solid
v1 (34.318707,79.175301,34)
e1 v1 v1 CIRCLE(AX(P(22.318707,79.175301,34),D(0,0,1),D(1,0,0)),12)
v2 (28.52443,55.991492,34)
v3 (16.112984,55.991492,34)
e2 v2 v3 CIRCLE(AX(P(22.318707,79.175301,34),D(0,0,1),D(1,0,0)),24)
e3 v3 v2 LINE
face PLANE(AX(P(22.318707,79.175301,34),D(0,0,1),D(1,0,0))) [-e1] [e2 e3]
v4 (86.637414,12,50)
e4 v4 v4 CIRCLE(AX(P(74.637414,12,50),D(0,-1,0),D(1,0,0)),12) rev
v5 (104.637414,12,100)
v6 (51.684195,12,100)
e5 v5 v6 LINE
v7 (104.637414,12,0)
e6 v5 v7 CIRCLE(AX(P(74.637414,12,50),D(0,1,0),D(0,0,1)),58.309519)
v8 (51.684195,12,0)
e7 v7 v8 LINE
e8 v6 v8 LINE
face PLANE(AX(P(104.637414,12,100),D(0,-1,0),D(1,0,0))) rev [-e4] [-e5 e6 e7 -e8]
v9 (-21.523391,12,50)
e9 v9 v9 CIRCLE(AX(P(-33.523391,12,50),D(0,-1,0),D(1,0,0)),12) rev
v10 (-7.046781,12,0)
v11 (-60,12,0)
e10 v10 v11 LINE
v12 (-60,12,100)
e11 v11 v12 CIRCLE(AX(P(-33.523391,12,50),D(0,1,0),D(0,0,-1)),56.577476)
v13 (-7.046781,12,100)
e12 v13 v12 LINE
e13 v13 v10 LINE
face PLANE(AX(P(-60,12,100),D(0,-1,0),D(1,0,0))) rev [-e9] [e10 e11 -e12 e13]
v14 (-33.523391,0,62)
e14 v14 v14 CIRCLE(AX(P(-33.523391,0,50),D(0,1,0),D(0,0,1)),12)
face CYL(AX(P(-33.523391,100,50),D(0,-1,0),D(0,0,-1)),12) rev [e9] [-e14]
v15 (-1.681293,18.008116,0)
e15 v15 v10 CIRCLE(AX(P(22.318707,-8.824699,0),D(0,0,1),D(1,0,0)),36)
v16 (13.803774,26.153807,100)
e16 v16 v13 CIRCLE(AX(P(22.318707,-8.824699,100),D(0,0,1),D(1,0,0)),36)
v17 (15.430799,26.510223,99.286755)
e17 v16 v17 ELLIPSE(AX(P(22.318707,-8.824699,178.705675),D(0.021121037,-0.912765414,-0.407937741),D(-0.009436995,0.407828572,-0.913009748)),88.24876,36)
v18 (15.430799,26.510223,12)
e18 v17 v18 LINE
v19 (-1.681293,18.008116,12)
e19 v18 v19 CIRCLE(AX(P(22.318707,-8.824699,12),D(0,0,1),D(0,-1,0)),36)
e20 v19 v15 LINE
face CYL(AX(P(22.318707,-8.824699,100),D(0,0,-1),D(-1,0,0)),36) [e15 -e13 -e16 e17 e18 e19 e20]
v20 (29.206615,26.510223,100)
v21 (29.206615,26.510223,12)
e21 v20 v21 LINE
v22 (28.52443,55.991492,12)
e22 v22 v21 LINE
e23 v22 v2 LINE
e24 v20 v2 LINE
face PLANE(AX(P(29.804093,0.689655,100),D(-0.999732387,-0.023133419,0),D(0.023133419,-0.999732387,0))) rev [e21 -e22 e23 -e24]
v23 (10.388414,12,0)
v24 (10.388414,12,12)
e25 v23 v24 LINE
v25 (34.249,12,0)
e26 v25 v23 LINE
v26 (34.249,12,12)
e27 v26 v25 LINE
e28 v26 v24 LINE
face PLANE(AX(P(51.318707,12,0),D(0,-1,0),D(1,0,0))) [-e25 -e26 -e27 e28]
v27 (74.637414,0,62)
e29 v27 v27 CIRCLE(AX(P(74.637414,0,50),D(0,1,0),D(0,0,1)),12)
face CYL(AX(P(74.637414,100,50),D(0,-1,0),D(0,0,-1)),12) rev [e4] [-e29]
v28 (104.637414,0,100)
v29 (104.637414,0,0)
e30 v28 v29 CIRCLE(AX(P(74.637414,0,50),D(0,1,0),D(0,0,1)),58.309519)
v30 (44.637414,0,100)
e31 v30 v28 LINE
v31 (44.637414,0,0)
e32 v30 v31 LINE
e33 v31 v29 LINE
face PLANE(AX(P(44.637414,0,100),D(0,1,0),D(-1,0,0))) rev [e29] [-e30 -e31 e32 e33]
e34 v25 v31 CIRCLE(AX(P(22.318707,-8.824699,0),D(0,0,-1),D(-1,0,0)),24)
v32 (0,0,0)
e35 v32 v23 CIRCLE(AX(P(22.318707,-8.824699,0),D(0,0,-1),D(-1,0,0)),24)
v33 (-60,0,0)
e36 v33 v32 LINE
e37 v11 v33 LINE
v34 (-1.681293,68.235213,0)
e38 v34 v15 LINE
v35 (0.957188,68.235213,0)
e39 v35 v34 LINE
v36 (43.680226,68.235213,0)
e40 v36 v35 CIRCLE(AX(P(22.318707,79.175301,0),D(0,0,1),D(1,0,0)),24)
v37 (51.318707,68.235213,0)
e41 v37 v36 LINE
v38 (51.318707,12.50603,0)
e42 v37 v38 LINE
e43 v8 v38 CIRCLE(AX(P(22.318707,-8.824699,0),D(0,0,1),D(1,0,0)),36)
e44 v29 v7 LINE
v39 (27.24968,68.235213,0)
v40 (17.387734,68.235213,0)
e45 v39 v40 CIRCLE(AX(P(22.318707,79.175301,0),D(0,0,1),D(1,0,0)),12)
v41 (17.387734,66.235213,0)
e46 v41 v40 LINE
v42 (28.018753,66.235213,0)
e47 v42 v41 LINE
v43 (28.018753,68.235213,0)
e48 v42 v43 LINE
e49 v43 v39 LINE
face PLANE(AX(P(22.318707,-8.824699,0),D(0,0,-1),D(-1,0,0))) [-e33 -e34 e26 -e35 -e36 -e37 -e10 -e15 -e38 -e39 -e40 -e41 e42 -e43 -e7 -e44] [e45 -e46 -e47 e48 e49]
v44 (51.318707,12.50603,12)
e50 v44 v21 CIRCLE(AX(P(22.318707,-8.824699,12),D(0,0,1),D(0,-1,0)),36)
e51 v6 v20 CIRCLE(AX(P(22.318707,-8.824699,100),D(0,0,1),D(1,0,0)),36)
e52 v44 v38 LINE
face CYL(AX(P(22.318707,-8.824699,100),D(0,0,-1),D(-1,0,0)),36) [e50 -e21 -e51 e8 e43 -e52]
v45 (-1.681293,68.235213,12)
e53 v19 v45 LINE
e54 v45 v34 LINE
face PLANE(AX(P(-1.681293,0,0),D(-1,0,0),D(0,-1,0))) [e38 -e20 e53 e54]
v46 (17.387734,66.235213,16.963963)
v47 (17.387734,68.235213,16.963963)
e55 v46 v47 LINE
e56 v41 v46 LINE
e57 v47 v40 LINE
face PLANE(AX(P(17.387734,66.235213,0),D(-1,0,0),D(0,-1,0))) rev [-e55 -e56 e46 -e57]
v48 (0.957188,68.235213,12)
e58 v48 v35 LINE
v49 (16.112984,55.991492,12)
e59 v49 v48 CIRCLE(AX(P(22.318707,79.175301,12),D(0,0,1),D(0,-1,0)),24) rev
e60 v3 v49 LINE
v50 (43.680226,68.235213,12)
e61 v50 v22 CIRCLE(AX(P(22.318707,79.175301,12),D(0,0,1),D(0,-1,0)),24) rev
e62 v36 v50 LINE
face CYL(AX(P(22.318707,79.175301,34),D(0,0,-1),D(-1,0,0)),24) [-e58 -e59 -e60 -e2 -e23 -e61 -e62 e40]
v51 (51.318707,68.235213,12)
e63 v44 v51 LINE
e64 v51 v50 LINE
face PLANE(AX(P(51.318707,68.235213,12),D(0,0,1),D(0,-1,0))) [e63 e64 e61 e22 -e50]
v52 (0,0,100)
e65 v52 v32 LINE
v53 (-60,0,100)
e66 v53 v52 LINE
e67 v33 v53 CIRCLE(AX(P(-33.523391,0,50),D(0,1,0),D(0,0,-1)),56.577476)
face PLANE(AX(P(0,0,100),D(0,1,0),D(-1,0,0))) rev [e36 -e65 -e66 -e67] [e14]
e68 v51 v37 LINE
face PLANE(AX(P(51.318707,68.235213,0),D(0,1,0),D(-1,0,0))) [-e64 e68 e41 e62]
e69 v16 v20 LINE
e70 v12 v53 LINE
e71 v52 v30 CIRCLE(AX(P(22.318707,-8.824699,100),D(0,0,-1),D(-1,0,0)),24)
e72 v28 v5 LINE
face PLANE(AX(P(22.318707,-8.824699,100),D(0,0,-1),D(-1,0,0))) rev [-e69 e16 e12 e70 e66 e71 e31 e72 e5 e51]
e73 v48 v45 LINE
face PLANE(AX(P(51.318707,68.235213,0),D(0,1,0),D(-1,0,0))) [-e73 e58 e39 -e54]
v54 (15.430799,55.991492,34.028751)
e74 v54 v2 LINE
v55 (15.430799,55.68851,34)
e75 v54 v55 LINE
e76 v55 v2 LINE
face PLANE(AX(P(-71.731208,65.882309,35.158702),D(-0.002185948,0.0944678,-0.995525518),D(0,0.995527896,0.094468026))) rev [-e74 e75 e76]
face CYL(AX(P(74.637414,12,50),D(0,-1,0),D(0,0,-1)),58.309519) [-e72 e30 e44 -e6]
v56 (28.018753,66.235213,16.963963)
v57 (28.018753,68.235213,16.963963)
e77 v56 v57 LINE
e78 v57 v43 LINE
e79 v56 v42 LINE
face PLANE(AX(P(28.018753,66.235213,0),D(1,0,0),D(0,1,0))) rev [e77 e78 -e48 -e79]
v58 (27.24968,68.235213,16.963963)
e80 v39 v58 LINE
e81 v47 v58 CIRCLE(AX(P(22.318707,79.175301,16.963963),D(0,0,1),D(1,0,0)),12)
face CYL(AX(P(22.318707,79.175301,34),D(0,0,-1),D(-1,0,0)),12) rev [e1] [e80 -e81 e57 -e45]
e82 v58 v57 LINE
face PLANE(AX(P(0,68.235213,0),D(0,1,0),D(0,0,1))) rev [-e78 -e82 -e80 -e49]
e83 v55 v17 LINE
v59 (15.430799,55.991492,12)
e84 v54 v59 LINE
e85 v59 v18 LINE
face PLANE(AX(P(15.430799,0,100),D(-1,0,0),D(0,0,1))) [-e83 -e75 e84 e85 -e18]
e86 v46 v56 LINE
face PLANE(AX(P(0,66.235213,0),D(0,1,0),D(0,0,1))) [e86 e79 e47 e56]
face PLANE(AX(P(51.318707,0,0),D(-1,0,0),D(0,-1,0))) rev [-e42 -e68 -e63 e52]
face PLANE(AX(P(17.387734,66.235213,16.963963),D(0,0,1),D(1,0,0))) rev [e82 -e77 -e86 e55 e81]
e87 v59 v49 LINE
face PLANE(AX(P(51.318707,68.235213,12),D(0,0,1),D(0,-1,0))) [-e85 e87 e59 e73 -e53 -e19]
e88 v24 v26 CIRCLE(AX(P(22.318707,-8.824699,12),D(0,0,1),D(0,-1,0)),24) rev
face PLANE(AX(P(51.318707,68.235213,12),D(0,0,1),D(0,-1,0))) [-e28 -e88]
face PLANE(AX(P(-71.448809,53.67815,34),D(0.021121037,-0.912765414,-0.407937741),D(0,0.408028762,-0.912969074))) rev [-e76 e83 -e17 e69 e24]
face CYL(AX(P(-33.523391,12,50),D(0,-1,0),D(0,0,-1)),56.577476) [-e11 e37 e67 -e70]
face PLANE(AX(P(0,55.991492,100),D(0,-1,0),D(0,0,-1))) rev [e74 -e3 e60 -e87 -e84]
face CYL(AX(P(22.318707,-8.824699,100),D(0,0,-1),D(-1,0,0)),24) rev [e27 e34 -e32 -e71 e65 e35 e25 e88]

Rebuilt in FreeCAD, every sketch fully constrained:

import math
import FreeCAD as App
import Part
import Sketcher

V = App.Vector
Q = App.Units.Quantity


def add_polygon(sketch, points):
    """Adds a closed chain of lines whose ends are joined by coincident constraints."""
    first, n = sketch.GeometryCount, len(points)
    for a, b in zip(points, points[1:] + points[:1]):
        sketch.addGeometry(Part.LineSegment(App.Vector(*a, 0), App.Vector(*b, 0)), False)
    for i in range(n):
        sketch.addConstraint(Sketcher.Constraint("Coincident", first + i, 2, first + (i + 1) % n, 1))

doc = App.newDocument("Part")
body = doc.addObject("PartDesign::Body", "Body")

sketch1 = doc.addObject("Sketcher::SketchObject", "Sketch")
body.addObject(sketch1)
sketch1.AttachmentSupport = (doc.XY_Plane, [""])
sketch1.MapMode = "FlatFace"
sketch1.addGeometry(Part.LineSegment(V(-60, 0, 0), V(0, 0, 0)), False)
sketch1.addGeometry(Part.ArcOfCircle(Part.Circle(V(22, -9, 0), V(0, 0, 1), 24), math.radians(22), math.radians(158)), False)
sketch1.addGeometry(Part.LineSegment(V(45, 0, 0), V(105, 0, 0)), False)
sketch1.addGeometry(Part.LineSegment(V(105, 0, 0), V(105, 12, 0)), False)
sketch1.addGeometry(Part.LineSegment(V(105, 12, 0), V(52, 12, 0)), False)
sketch1.addGeometry(Part.ArcOfCircle(Part.Circle(V(22, -9, 0), V(0, 0, 1), 36), math.radians(35), math.radians(145)), False)
sketch1.addGeometry(Part.LineSegment(V(-7, 12, 0), V(-60, 12, 0)), False)
sketch1.addGeometry(Part.LineSegment(V(-60, 12, 0), V(-60, 0, 0)), False)
sketch1.addConstraint(Sketcher.Constraint("Coincident", 0, 2, 1, 2))
sketch1.addConstraint(Sketcher.Constraint("Coincident", 1, 1, 2, 1))
sketch1.addConstraint(Sketcher.Constraint("Coincident", 2, 2, 3, 1))
sketch1.addConstraint(Sketcher.Constraint("Coincident", 3, 2, 4, 1))
sketch1.addConstraint(Sketcher.Constraint("Coincident", 4, 2, 5, 1))
sketch1.addConstraint(Sketcher.Constraint("Coincident", 5, 2, 6, 1))
sketch1.addConstraint(Sketcher.Constraint("Coincident", 6, 2, 7, 1))
sketch1.addConstraint(Sketcher.Constraint("Coincident", 7, 2, 0, 1))
sketch1.addConstraint(Sketcher.Constraint("Horizontal", 0))
sketch1.addConstraint(Sketcher.Constraint("Horizontal", 2))
sketch1.addConstraint(Sketcher.Constraint("Vertical", 3))
sketch1.addConstraint(Sketcher.Constraint("Horizontal", 4))
sketch1.addConstraint(Sketcher.Constraint("Horizontal", 6))
sketch1.addConstraint(Sketcher.Constraint("Vertical", 7))
sketch1.addConstraint(Sketcher.Constraint("Coincident", 0, 2, -1, 1))
sketch1.addConstraint(Sketcher.Constraint("Coincident", 5, 3, 1, 3))
sketch1.addConstraint(Sketcher.Constraint("PointOnObject", 1, 1, -1))
sketch1.addConstraint(Sketcher.Constraint("Horizontal", 4, 2, 5, 2))
sketch1.addConstraint(Sketcher.Constraint("Equal", 0, 2))
sketch1.addConstraint(Sketcher.Constraint("Radius", 1, Q("24 mm")))
sketch1.addConstraint(Sketcher.Constraint("Radius", 5, Q("36 mm")))
sketch1.addConstraint(Sketcher.Constraint("DistanceX", 0, 1, 0, 2, Q("60 mm")))
sketch1.addConstraint(Sketcher.Constraint("DistanceY", 3, 1, 3, 2, Q("12 mm")))
sketch1.addConstraint(Sketcher.Constraint("DistanceX", 4, 2, 4, 1, Q("52.953219 mm")))
pad1 = doc.addObject("PartDesign::Pad", "Pad")
body.addObject(pad1)
pad1.Profile = sketch1
pad1.Length = 100

sketch2 = doc.addObject("Sketcher::SketchObject", "Sketch001")
body.addObject(sketch2)
sketch2.AttachmentSupport = (doc.XZ_Plane, [""])
sketch2.MapMode = "FlatFace"
sketch2.addGeometry(Part.Circle(V(-34, 50, 0), V(0, 0, 1), 12), False)
sketch2.addGeometry(Part.Circle(V(75, 50, 0), V(0, 0, 1), 12), False)
sketch2.addConstraint(Sketcher.Constraint("Equal", 0, 1))
sketch2.addConstraint(Sketcher.Constraint("Horizontal", 0, 3, 1, 3))
sketch2.addConstraint(Sketcher.Constraint("Diameter", 0, Q("24 mm")))
sketch2.addConstraint(Sketcher.Constraint("DistanceY", -1, 1, 0, 3, Q("50 mm")))
sketch2.addConstraint(Sketcher.Constraint("DistanceX", 0, 3, -1, 1, Q("33.523391 mm")))
sketch2.addConstraint(Sketcher.Constraint("DistanceX", -1, 1, 1, 3, Q("74.637414 mm")))
pocket1 = doc.addObject("PartDesign::Pocket", "Pocket")
body.addObject(pocket1)
pocket1.Profile = sketch2
pocket1.Length = 100

sketch3 = doc.addObject("Sketcher::SketchObject", "Sketch002")
body.addObject(sketch3)
sketch3.AttachmentSupport = (doc.XZ_Plane, [""])
sketch3.MapMode = "FlatFace"
sketch3.addGeometry(Part.LineSegment(V(-60, 100, 0), V(-60, 0, 0)), False)
sketch3.addGeometry(Part.ArcOfCircle(Part.Circle(V(-34, 50, 0), V(0, 0, 1), 57), math.radians(118), math.radians(242)), False)
sketch3.addGeometry(Part.LineSegment(V(105, 0, 0), V(105, 100, 0)), False)
sketch3.addGeometry(Part.ArcOfCircle(Part.Circle(V(75, 50, 0), V(0, 0, 1), 58), math.radians(-59), math.radians(59)), False)
sketch3.addConstraint(Sketcher.Constraint("Coincident", 0, 1, 1, 1))
sketch3.addConstraint(Sketcher.Constraint("Coincident", 1, 2, 0, 2))
sketch3.addConstraint(Sketcher.Constraint("Coincident", 2, 1, 3, 1))
sketch3.addConstraint(Sketcher.Constraint("Coincident", 3, 2, 2, 2))
sketch3.addConstraint(Sketcher.Constraint("Vertical", 0))
sketch3.addConstraint(Sketcher.Constraint("Vertical", 2))
sketch3.addConstraint(Sketcher.Constraint("PointOnObject", 1, 2, -1))
sketch3.addConstraint(Sketcher.Constraint("PointOnObject", 2, 1, -1))
sketch3.addConstraint(Sketcher.Constraint("Horizontal", 1, 3, 3, 3))
sketch3.addConstraint(Sketcher.Constraint("DistanceY", 0, 2, 0, 1, Q("100 mm")))
sketch3.addConstraint(Sketcher.Constraint("DistanceX", 0, 1, -1, 1, Q("60 mm")))
sketch3.addConstraint(Sketcher.Constraint("DistanceX", 3, 3, 2, 1, Q("30 mm")))
sketch3.addConstraint(Sketcher.Constraint("Radius", 1, Q("56.577476 mm")))
sketch3.addConstraint(Sketcher.Constraint("DistanceX", -1, 1, 3, 3, Q("74.637414 mm")))
pad2 = doc.addObject("PartDesign::Pad", "Pad001")
body.addObject(pad2)
pad2.Profile = sketch3
pad2.Length = 12
pad2.Reversed = True
body2 = doc.addObject("PartDesign::Body", "Body001")

sketch4 = doc.addObject("Sketcher::SketchObject", "Sketch003")
body2.addObject(sketch4)
sketch4.AttachmentSupport = (doc.getObject("XY_Plane001"), [""])
sketch4.MapMode = "FlatFace"
sketch4.addGeometry(Part.Circle(V(22, 79, 0), V(0, 0, 1), 24), False)
sketch4.addGeometry(Part.Circle(V(22, 79, 0), V(0, 0, 1), 12), False)
sketch4.addConstraint(Sketcher.Constraint("Coincident", 1, 3, 0, 3))
sketch4.addConstraint(Sketcher.Constraint("Diameter", 0, Q("48 mm")))
sketch4.addConstraint(Sketcher.Constraint("Diameter", 1, Q("24 mm")))
sketch4.addConstraint(Sketcher.Constraint("DistanceY", -1, 1, 0, 3, Q("79.175301 mm")))
sketch4.addConstraint(Sketcher.Constraint("DistanceX", -1, 1, 0, 3, Q("22.318707 mm")))
pad3 = doc.addObject("PartDesign::Pad", "Pad002")
body2.addObject(pad3)
pad3.Profile = sketch4
pad3.Length = 34
body.AllowCompound = True
doc.recompute()

boolean = doc.addObject("PartDesign::Boolean", "Boolean")
body.addObject(boolean)
boolean.Type = "Fuse"
boolean.addObjects([body2])

sketch5 = doc.addObject("Sketcher::SketchObject", "Sketch004")
body.addObject(sketch5)
sketch5.AttachmentSupport = (doc.YZ_Plane, [""])
sketch5.MapMode = "FlatFace"
sketch5.AttachmentOffset = App.Placement(V(0, 0, -1.681293), App.Rotation())
add_polygon(sketch5, [(68, 0), (12, 0), (12, 12), (68, 12)])
sketch5.addConstraint(Sketcher.Constraint("Horizontal", 0))
sketch5.addConstraint(Sketcher.Constraint("Vertical", 1))
sketch5.addConstraint(Sketcher.Constraint("Horizontal", 2))
sketch5.addConstraint(Sketcher.Constraint("Vertical", 3))
sketch5.addConstraint(Sketcher.Constraint("PointOnObject", 0, 2, -1))
sketch5.addConstraint(Sketcher.Constraint("DistanceY", 1, 1, 1, 2, Q("12 mm")))
sketch5.addConstraint(Sketcher.Constraint("DistanceX", -1, 1, 0, 2, Q("12 mm")))
sketch5.addConstraint(Sketcher.Constraint("DistanceX", 0, 2, 0, 1, Q("56.235213 mm")))
pad4 = doc.addObject("PartDesign::Pad", "Pad003")
body.addObject(pad4)
pad4.Profile = sketch5
pad4.Length = 53

sketch6 = doc.addObject("Sketcher::SketchObject", "Sketch005")
body.addObject(sketch6)
sketch6.AttachmentSupport = (doc.XY_Plane, [""])
sketch6.MapMode = "FlatFace"
add_polygon(sketch6, [(15.430799, 55.991492), (15.430799, 26.510223), (29.206615, 26.510223), (28.52443, 55.991492)])
sketch6.addConstraint(Sketcher.Constraint("Vertical", 0))
sketch6.addConstraint(Sketcher.Constraint("Horizontal", 1))
sketch6.addConstraint(Sketcher.Constraint("Horizontal", 3))
sketch6.addConstraint(Sketcher.Constraint("DistanceX", 3, 2, 3, 1, Q("13.093631 mm")))
sketch6.addConstraint(Sketcher.Constraint("DistanceY", 0, 2, 0, 1, Q("29.481269 mm")))
sketch6.addConstraint(Sketcher.Constraint("DistanceX", -1, 1, 0, 2, Q("15.430799 mm")))
sketch6.addConstraint(Sketcher.Constraint("Distance", 2, Q("29.48916 mm")))
sketch6.addConstraint(Sketcher.Constraint("DistanceY", -1, 1, 2, 2, Q("55.991492 mm")))
pad5 = doc.addObject("PartDesign::Pad", "Pad004")
body.addObject(pad5)
pad5.Profile = sketch6
pad5.Length = 100

sketch7 = doc.addObject("Sketcher::SketchObject", "Sketch006")
body.addObject(sketch7)
sketch7.Placement = App.Placement(V(29.804093, 0.689655, 0), App.Rotation(V(0, 0, -1), V(-0.023133419, 0.999732387, 0), V(0.999732387, 0.023133419, 0), "ZXY"))
add_polygon(sketch7, [(-100, 26), (-34, 55), (-35, 68), (-102, 70), (-100, 55)])
sketch7.addConstraint(Sketcher.Constraint("Vertical", 4))
sketch7.addConstraint(Sketcher.Constraint("Horizontal", 0, 2, 3, 2))
sketch7.addConstraint(Sketcher.Constraint("DistanceX", 0, 2, -1, 1, Q("34 mm")))
sketch7.addConstraint(Sketcher.Constraint("DistanceX", 3, 2, -1, 1, Q("100 mm")))
sketch7.addConstraint(Sketcher.Constraint("DistanceY", 4, 2, 4, 1, Q("29.48916 mm")))
sketch7.addConstraint(Sketcher.Constraint("DistanceX", 1, 2, -1, 1, Q("35.158702 mm")))
sketch7.addConstraint(Sketcher.Constraint("DistanceY", -1, 1, 0, 2, Q("55.31664 mm")))
sketch7.addConstraint(Sketcher.Constraint("DistanceX", 2, 2, -1, 1, Q("101.715629 mm")))
sketch7.addConstraint(Sketcher.Constraint("DistanceY", -1, 1, 2, 2, Q("69.70177 mm")))
sketch7.addConstraint(Sketcher.Constraint("Distance", 1, Q("12.262294 mm")))
pocket2 = doc.addObject("PartDesign::Pocket", "Pocket001")
body.addObject(pocket2)
pocket2.Profile = sketch7
pocket2.Length = 100

sketch8 = doc.addObject("Sketcher::SketchObject", "Sketch007")
body.addObject(sketch8)
sketch8.AttachmentSupport = (doc.XZ_Plane, [""])
sketch8.MapMode = "FlatFace"
sketch8.AttachmentOffset = App.Placement(V(0, 0, -68.235213), App.Rotation())
add_polygon(sketch8, [(17, 0), (17, 17), (28, 17), (28, 0)])
sketch8.addConstraint(Sketcher.Constraint("Vertical", 0))
sketch8.addConstraint(Sketcher.Constraint("Horizontal", 1))
sketch8.addConstraint(Sketcher.Constraint("Vertical", 2))
sketch8.addConstraint(Sketcher.Constraint("Horizontal", 3))
sketch8.addConstraint(Sketcher.Constraint("PointOnObject", 2, 2, -1))
sketch8.addConstraint(Sketcher.Constraint("DistanceX", 1, 1, 1, 2, Q("10.631018 mm")))
sketch8.addConstraint(Sketcher.Constraint("DistanceY", 0, 1, 0, 2, Q("16.963963 mm")))
sketch8.addConstraint(Sketcher.Constraint("DistanceX", -1, 1, 0, 2, Q("17.387734 mm")))
pocket3 = doc.addObject("PartDesign::Pocket", "Pocket002")
body.addObject(pocket3)
pocket3.Profile = sketch8
pocket3.Length = 2
pocket3.Reversed = True

doc.recompute()
